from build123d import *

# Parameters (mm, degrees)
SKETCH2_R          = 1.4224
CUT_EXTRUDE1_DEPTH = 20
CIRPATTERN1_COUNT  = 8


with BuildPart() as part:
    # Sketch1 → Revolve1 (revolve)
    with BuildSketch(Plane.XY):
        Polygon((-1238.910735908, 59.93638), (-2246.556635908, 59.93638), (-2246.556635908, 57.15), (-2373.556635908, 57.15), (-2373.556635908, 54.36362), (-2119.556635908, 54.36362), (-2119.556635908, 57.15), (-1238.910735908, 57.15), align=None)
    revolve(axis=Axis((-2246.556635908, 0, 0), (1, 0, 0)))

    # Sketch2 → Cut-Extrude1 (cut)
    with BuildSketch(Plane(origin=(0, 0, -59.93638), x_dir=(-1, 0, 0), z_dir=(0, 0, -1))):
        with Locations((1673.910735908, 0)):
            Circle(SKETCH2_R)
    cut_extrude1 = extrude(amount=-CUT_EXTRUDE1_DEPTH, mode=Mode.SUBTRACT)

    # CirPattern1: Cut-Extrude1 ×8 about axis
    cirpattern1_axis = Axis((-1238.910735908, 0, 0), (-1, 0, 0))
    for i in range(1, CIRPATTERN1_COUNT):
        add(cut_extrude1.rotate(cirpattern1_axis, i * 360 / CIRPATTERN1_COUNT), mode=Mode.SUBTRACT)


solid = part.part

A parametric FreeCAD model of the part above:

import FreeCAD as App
import Part
import Sketcher
Q = App.Units.Quantity


def add_polygon(sketch, points):
    """Adds a closed chain of lines whose ends are joined by coincident constraints."""
    first, n = sketch.GeometryCount, len(points)
    for a, b in zip(points, points[1:] + points[:1]):
        sketch.addGeometry(Part.LineSegment(App.Vector(*a, 0), App.Vector(*b, 0)), False)
    for i in range(n):
        sketch.addConstraint(Sketcher.Constraint("Coincident", first + i, 2, first + (i + 1) % n, 1))

doc = App.newDocument("Part")
body = doc.addObject("PartDesign::Body", "Body")

# Sketch on XY plane
sketch1 = body.newObject("Sketcher::SketchObject", "Sketch")
sketch1.AttachmentSupport = (doc.getObject("XY_Plane"), [""])
sketch1.MapMode = "FlatFace"
add_polygon(sketch1, [(-1238.9, 59.9), (-2246.6, 59.9), (-2246.6, 57.1), (-2373.6, 57.1), (-2373.6, 54.4), (-2119.6, 54.4), (-2119.6, 57.1), (-1238.9, 57.1)])  # lines 0-7
sketch1.addConstraint(Sketcher.Constraint("Horizontal", 0))
sketch1.addConstraint(Sketcher.Constraint("Vertical", 1))
sketch1.addConstraint(Sketcher.Constraint("Horizontal", 2))
sketch1.addConstraint(Sketcher.Constraint("Vertical", 3))
sketch1.addConstraint(Sketcher.Constraint("Horizontal", 4))
sketch1.addConstraint(Sketcher.Constraint("Vertical", 5))
sketch1.addConstraint(Sketcher.Constraint("Horizontal", 6))
sketch1.addConstraint(Sketcher.Constraint("Vertical", 7))
sketch1.addConstraint(Sketcher.Constraint("Horizontal", 2, 2, 5, 2))
sketch1.addConstraint(Sketcher.Constraint("Equal", 1, 3))
sketch1.addConstraint(Sketcher.Constraint("DistanceX", 2, 2, 2, 1, Q("5 in")))
sketch1.addConstraint(Sketcher.Constraint("DistanceX", 4, 1, 4, 2, Q("10 in")))
sketch1.addConstraint(Sketcher.Constraint("DistanceY", -1, 1, 1, 2, Q("2.25 in")))
sketch1.addConstraint(Sketcher.Constraint("DistanceY", 1, 2, 1, 1, Q("0.1097 in")))
sketch1.addConstraint(Sketcher.Constraint("DistanceX", 0, 2, 0, 1, 1007.6459))
sketch1.addConstraint(Sketcher.Constraint("DistanceX", 0, 2, -1, 1, 2246.556636))
revolution = body.newObject("PartDesign::Revolution", "Revolution")
revolution.Profile = sketch1
revolution.ReferenceAxis = (sketch1, ["H_Axis"])
revolution.Angle = 360

# Sketch on XY plane
sketch2 = body.newObject("Sketcher::SketchObject", "Sketch001")
sketch2.AttachmentSupport = (doc.getObject("XY_Plane"), [""])
sketch2.MapMode = "FlatFace"
sketch2.AttachmentOffset = App.Placement(App.Vector(0, 0, -2.3597 * 25.4), App.Rotation())
sketch2.addGeometry(Part.Circle(App.Vector(-1673.9, 0, 0), App.Vector(0, 0, 1), 1.4), False)
sketch2.addConstraint(Sketcher.Constraint("PointOnObject", 0, 3, -1))
sketch2.addConstraint(Sketcher.Constraint("Diameter", 0, Q("0.112 in")))
sketch2.addConstraint(Sketcher.Constraint("DistanceX", 0, 3, -1, 1, 1673.910736))
pocket1 = body.newObject("PartDesign::Pocket", "Pocket")
pocket1.Profile = sketch2
pocket1.Length = 20
pocket1.Reversed = True
doc.recompute()

polarpattern = body.newObject("PartDesign::PolarPattern", "PolarPattern")
polarpattern.Originals = [pocket1]
polarpattern.Axis = (doc.getObject("X_Axis"), [""])
polarpattern.Angle = 360
polarpattern.Occurrences = 8
body.Tip = polarpattern

doc.recompute()
